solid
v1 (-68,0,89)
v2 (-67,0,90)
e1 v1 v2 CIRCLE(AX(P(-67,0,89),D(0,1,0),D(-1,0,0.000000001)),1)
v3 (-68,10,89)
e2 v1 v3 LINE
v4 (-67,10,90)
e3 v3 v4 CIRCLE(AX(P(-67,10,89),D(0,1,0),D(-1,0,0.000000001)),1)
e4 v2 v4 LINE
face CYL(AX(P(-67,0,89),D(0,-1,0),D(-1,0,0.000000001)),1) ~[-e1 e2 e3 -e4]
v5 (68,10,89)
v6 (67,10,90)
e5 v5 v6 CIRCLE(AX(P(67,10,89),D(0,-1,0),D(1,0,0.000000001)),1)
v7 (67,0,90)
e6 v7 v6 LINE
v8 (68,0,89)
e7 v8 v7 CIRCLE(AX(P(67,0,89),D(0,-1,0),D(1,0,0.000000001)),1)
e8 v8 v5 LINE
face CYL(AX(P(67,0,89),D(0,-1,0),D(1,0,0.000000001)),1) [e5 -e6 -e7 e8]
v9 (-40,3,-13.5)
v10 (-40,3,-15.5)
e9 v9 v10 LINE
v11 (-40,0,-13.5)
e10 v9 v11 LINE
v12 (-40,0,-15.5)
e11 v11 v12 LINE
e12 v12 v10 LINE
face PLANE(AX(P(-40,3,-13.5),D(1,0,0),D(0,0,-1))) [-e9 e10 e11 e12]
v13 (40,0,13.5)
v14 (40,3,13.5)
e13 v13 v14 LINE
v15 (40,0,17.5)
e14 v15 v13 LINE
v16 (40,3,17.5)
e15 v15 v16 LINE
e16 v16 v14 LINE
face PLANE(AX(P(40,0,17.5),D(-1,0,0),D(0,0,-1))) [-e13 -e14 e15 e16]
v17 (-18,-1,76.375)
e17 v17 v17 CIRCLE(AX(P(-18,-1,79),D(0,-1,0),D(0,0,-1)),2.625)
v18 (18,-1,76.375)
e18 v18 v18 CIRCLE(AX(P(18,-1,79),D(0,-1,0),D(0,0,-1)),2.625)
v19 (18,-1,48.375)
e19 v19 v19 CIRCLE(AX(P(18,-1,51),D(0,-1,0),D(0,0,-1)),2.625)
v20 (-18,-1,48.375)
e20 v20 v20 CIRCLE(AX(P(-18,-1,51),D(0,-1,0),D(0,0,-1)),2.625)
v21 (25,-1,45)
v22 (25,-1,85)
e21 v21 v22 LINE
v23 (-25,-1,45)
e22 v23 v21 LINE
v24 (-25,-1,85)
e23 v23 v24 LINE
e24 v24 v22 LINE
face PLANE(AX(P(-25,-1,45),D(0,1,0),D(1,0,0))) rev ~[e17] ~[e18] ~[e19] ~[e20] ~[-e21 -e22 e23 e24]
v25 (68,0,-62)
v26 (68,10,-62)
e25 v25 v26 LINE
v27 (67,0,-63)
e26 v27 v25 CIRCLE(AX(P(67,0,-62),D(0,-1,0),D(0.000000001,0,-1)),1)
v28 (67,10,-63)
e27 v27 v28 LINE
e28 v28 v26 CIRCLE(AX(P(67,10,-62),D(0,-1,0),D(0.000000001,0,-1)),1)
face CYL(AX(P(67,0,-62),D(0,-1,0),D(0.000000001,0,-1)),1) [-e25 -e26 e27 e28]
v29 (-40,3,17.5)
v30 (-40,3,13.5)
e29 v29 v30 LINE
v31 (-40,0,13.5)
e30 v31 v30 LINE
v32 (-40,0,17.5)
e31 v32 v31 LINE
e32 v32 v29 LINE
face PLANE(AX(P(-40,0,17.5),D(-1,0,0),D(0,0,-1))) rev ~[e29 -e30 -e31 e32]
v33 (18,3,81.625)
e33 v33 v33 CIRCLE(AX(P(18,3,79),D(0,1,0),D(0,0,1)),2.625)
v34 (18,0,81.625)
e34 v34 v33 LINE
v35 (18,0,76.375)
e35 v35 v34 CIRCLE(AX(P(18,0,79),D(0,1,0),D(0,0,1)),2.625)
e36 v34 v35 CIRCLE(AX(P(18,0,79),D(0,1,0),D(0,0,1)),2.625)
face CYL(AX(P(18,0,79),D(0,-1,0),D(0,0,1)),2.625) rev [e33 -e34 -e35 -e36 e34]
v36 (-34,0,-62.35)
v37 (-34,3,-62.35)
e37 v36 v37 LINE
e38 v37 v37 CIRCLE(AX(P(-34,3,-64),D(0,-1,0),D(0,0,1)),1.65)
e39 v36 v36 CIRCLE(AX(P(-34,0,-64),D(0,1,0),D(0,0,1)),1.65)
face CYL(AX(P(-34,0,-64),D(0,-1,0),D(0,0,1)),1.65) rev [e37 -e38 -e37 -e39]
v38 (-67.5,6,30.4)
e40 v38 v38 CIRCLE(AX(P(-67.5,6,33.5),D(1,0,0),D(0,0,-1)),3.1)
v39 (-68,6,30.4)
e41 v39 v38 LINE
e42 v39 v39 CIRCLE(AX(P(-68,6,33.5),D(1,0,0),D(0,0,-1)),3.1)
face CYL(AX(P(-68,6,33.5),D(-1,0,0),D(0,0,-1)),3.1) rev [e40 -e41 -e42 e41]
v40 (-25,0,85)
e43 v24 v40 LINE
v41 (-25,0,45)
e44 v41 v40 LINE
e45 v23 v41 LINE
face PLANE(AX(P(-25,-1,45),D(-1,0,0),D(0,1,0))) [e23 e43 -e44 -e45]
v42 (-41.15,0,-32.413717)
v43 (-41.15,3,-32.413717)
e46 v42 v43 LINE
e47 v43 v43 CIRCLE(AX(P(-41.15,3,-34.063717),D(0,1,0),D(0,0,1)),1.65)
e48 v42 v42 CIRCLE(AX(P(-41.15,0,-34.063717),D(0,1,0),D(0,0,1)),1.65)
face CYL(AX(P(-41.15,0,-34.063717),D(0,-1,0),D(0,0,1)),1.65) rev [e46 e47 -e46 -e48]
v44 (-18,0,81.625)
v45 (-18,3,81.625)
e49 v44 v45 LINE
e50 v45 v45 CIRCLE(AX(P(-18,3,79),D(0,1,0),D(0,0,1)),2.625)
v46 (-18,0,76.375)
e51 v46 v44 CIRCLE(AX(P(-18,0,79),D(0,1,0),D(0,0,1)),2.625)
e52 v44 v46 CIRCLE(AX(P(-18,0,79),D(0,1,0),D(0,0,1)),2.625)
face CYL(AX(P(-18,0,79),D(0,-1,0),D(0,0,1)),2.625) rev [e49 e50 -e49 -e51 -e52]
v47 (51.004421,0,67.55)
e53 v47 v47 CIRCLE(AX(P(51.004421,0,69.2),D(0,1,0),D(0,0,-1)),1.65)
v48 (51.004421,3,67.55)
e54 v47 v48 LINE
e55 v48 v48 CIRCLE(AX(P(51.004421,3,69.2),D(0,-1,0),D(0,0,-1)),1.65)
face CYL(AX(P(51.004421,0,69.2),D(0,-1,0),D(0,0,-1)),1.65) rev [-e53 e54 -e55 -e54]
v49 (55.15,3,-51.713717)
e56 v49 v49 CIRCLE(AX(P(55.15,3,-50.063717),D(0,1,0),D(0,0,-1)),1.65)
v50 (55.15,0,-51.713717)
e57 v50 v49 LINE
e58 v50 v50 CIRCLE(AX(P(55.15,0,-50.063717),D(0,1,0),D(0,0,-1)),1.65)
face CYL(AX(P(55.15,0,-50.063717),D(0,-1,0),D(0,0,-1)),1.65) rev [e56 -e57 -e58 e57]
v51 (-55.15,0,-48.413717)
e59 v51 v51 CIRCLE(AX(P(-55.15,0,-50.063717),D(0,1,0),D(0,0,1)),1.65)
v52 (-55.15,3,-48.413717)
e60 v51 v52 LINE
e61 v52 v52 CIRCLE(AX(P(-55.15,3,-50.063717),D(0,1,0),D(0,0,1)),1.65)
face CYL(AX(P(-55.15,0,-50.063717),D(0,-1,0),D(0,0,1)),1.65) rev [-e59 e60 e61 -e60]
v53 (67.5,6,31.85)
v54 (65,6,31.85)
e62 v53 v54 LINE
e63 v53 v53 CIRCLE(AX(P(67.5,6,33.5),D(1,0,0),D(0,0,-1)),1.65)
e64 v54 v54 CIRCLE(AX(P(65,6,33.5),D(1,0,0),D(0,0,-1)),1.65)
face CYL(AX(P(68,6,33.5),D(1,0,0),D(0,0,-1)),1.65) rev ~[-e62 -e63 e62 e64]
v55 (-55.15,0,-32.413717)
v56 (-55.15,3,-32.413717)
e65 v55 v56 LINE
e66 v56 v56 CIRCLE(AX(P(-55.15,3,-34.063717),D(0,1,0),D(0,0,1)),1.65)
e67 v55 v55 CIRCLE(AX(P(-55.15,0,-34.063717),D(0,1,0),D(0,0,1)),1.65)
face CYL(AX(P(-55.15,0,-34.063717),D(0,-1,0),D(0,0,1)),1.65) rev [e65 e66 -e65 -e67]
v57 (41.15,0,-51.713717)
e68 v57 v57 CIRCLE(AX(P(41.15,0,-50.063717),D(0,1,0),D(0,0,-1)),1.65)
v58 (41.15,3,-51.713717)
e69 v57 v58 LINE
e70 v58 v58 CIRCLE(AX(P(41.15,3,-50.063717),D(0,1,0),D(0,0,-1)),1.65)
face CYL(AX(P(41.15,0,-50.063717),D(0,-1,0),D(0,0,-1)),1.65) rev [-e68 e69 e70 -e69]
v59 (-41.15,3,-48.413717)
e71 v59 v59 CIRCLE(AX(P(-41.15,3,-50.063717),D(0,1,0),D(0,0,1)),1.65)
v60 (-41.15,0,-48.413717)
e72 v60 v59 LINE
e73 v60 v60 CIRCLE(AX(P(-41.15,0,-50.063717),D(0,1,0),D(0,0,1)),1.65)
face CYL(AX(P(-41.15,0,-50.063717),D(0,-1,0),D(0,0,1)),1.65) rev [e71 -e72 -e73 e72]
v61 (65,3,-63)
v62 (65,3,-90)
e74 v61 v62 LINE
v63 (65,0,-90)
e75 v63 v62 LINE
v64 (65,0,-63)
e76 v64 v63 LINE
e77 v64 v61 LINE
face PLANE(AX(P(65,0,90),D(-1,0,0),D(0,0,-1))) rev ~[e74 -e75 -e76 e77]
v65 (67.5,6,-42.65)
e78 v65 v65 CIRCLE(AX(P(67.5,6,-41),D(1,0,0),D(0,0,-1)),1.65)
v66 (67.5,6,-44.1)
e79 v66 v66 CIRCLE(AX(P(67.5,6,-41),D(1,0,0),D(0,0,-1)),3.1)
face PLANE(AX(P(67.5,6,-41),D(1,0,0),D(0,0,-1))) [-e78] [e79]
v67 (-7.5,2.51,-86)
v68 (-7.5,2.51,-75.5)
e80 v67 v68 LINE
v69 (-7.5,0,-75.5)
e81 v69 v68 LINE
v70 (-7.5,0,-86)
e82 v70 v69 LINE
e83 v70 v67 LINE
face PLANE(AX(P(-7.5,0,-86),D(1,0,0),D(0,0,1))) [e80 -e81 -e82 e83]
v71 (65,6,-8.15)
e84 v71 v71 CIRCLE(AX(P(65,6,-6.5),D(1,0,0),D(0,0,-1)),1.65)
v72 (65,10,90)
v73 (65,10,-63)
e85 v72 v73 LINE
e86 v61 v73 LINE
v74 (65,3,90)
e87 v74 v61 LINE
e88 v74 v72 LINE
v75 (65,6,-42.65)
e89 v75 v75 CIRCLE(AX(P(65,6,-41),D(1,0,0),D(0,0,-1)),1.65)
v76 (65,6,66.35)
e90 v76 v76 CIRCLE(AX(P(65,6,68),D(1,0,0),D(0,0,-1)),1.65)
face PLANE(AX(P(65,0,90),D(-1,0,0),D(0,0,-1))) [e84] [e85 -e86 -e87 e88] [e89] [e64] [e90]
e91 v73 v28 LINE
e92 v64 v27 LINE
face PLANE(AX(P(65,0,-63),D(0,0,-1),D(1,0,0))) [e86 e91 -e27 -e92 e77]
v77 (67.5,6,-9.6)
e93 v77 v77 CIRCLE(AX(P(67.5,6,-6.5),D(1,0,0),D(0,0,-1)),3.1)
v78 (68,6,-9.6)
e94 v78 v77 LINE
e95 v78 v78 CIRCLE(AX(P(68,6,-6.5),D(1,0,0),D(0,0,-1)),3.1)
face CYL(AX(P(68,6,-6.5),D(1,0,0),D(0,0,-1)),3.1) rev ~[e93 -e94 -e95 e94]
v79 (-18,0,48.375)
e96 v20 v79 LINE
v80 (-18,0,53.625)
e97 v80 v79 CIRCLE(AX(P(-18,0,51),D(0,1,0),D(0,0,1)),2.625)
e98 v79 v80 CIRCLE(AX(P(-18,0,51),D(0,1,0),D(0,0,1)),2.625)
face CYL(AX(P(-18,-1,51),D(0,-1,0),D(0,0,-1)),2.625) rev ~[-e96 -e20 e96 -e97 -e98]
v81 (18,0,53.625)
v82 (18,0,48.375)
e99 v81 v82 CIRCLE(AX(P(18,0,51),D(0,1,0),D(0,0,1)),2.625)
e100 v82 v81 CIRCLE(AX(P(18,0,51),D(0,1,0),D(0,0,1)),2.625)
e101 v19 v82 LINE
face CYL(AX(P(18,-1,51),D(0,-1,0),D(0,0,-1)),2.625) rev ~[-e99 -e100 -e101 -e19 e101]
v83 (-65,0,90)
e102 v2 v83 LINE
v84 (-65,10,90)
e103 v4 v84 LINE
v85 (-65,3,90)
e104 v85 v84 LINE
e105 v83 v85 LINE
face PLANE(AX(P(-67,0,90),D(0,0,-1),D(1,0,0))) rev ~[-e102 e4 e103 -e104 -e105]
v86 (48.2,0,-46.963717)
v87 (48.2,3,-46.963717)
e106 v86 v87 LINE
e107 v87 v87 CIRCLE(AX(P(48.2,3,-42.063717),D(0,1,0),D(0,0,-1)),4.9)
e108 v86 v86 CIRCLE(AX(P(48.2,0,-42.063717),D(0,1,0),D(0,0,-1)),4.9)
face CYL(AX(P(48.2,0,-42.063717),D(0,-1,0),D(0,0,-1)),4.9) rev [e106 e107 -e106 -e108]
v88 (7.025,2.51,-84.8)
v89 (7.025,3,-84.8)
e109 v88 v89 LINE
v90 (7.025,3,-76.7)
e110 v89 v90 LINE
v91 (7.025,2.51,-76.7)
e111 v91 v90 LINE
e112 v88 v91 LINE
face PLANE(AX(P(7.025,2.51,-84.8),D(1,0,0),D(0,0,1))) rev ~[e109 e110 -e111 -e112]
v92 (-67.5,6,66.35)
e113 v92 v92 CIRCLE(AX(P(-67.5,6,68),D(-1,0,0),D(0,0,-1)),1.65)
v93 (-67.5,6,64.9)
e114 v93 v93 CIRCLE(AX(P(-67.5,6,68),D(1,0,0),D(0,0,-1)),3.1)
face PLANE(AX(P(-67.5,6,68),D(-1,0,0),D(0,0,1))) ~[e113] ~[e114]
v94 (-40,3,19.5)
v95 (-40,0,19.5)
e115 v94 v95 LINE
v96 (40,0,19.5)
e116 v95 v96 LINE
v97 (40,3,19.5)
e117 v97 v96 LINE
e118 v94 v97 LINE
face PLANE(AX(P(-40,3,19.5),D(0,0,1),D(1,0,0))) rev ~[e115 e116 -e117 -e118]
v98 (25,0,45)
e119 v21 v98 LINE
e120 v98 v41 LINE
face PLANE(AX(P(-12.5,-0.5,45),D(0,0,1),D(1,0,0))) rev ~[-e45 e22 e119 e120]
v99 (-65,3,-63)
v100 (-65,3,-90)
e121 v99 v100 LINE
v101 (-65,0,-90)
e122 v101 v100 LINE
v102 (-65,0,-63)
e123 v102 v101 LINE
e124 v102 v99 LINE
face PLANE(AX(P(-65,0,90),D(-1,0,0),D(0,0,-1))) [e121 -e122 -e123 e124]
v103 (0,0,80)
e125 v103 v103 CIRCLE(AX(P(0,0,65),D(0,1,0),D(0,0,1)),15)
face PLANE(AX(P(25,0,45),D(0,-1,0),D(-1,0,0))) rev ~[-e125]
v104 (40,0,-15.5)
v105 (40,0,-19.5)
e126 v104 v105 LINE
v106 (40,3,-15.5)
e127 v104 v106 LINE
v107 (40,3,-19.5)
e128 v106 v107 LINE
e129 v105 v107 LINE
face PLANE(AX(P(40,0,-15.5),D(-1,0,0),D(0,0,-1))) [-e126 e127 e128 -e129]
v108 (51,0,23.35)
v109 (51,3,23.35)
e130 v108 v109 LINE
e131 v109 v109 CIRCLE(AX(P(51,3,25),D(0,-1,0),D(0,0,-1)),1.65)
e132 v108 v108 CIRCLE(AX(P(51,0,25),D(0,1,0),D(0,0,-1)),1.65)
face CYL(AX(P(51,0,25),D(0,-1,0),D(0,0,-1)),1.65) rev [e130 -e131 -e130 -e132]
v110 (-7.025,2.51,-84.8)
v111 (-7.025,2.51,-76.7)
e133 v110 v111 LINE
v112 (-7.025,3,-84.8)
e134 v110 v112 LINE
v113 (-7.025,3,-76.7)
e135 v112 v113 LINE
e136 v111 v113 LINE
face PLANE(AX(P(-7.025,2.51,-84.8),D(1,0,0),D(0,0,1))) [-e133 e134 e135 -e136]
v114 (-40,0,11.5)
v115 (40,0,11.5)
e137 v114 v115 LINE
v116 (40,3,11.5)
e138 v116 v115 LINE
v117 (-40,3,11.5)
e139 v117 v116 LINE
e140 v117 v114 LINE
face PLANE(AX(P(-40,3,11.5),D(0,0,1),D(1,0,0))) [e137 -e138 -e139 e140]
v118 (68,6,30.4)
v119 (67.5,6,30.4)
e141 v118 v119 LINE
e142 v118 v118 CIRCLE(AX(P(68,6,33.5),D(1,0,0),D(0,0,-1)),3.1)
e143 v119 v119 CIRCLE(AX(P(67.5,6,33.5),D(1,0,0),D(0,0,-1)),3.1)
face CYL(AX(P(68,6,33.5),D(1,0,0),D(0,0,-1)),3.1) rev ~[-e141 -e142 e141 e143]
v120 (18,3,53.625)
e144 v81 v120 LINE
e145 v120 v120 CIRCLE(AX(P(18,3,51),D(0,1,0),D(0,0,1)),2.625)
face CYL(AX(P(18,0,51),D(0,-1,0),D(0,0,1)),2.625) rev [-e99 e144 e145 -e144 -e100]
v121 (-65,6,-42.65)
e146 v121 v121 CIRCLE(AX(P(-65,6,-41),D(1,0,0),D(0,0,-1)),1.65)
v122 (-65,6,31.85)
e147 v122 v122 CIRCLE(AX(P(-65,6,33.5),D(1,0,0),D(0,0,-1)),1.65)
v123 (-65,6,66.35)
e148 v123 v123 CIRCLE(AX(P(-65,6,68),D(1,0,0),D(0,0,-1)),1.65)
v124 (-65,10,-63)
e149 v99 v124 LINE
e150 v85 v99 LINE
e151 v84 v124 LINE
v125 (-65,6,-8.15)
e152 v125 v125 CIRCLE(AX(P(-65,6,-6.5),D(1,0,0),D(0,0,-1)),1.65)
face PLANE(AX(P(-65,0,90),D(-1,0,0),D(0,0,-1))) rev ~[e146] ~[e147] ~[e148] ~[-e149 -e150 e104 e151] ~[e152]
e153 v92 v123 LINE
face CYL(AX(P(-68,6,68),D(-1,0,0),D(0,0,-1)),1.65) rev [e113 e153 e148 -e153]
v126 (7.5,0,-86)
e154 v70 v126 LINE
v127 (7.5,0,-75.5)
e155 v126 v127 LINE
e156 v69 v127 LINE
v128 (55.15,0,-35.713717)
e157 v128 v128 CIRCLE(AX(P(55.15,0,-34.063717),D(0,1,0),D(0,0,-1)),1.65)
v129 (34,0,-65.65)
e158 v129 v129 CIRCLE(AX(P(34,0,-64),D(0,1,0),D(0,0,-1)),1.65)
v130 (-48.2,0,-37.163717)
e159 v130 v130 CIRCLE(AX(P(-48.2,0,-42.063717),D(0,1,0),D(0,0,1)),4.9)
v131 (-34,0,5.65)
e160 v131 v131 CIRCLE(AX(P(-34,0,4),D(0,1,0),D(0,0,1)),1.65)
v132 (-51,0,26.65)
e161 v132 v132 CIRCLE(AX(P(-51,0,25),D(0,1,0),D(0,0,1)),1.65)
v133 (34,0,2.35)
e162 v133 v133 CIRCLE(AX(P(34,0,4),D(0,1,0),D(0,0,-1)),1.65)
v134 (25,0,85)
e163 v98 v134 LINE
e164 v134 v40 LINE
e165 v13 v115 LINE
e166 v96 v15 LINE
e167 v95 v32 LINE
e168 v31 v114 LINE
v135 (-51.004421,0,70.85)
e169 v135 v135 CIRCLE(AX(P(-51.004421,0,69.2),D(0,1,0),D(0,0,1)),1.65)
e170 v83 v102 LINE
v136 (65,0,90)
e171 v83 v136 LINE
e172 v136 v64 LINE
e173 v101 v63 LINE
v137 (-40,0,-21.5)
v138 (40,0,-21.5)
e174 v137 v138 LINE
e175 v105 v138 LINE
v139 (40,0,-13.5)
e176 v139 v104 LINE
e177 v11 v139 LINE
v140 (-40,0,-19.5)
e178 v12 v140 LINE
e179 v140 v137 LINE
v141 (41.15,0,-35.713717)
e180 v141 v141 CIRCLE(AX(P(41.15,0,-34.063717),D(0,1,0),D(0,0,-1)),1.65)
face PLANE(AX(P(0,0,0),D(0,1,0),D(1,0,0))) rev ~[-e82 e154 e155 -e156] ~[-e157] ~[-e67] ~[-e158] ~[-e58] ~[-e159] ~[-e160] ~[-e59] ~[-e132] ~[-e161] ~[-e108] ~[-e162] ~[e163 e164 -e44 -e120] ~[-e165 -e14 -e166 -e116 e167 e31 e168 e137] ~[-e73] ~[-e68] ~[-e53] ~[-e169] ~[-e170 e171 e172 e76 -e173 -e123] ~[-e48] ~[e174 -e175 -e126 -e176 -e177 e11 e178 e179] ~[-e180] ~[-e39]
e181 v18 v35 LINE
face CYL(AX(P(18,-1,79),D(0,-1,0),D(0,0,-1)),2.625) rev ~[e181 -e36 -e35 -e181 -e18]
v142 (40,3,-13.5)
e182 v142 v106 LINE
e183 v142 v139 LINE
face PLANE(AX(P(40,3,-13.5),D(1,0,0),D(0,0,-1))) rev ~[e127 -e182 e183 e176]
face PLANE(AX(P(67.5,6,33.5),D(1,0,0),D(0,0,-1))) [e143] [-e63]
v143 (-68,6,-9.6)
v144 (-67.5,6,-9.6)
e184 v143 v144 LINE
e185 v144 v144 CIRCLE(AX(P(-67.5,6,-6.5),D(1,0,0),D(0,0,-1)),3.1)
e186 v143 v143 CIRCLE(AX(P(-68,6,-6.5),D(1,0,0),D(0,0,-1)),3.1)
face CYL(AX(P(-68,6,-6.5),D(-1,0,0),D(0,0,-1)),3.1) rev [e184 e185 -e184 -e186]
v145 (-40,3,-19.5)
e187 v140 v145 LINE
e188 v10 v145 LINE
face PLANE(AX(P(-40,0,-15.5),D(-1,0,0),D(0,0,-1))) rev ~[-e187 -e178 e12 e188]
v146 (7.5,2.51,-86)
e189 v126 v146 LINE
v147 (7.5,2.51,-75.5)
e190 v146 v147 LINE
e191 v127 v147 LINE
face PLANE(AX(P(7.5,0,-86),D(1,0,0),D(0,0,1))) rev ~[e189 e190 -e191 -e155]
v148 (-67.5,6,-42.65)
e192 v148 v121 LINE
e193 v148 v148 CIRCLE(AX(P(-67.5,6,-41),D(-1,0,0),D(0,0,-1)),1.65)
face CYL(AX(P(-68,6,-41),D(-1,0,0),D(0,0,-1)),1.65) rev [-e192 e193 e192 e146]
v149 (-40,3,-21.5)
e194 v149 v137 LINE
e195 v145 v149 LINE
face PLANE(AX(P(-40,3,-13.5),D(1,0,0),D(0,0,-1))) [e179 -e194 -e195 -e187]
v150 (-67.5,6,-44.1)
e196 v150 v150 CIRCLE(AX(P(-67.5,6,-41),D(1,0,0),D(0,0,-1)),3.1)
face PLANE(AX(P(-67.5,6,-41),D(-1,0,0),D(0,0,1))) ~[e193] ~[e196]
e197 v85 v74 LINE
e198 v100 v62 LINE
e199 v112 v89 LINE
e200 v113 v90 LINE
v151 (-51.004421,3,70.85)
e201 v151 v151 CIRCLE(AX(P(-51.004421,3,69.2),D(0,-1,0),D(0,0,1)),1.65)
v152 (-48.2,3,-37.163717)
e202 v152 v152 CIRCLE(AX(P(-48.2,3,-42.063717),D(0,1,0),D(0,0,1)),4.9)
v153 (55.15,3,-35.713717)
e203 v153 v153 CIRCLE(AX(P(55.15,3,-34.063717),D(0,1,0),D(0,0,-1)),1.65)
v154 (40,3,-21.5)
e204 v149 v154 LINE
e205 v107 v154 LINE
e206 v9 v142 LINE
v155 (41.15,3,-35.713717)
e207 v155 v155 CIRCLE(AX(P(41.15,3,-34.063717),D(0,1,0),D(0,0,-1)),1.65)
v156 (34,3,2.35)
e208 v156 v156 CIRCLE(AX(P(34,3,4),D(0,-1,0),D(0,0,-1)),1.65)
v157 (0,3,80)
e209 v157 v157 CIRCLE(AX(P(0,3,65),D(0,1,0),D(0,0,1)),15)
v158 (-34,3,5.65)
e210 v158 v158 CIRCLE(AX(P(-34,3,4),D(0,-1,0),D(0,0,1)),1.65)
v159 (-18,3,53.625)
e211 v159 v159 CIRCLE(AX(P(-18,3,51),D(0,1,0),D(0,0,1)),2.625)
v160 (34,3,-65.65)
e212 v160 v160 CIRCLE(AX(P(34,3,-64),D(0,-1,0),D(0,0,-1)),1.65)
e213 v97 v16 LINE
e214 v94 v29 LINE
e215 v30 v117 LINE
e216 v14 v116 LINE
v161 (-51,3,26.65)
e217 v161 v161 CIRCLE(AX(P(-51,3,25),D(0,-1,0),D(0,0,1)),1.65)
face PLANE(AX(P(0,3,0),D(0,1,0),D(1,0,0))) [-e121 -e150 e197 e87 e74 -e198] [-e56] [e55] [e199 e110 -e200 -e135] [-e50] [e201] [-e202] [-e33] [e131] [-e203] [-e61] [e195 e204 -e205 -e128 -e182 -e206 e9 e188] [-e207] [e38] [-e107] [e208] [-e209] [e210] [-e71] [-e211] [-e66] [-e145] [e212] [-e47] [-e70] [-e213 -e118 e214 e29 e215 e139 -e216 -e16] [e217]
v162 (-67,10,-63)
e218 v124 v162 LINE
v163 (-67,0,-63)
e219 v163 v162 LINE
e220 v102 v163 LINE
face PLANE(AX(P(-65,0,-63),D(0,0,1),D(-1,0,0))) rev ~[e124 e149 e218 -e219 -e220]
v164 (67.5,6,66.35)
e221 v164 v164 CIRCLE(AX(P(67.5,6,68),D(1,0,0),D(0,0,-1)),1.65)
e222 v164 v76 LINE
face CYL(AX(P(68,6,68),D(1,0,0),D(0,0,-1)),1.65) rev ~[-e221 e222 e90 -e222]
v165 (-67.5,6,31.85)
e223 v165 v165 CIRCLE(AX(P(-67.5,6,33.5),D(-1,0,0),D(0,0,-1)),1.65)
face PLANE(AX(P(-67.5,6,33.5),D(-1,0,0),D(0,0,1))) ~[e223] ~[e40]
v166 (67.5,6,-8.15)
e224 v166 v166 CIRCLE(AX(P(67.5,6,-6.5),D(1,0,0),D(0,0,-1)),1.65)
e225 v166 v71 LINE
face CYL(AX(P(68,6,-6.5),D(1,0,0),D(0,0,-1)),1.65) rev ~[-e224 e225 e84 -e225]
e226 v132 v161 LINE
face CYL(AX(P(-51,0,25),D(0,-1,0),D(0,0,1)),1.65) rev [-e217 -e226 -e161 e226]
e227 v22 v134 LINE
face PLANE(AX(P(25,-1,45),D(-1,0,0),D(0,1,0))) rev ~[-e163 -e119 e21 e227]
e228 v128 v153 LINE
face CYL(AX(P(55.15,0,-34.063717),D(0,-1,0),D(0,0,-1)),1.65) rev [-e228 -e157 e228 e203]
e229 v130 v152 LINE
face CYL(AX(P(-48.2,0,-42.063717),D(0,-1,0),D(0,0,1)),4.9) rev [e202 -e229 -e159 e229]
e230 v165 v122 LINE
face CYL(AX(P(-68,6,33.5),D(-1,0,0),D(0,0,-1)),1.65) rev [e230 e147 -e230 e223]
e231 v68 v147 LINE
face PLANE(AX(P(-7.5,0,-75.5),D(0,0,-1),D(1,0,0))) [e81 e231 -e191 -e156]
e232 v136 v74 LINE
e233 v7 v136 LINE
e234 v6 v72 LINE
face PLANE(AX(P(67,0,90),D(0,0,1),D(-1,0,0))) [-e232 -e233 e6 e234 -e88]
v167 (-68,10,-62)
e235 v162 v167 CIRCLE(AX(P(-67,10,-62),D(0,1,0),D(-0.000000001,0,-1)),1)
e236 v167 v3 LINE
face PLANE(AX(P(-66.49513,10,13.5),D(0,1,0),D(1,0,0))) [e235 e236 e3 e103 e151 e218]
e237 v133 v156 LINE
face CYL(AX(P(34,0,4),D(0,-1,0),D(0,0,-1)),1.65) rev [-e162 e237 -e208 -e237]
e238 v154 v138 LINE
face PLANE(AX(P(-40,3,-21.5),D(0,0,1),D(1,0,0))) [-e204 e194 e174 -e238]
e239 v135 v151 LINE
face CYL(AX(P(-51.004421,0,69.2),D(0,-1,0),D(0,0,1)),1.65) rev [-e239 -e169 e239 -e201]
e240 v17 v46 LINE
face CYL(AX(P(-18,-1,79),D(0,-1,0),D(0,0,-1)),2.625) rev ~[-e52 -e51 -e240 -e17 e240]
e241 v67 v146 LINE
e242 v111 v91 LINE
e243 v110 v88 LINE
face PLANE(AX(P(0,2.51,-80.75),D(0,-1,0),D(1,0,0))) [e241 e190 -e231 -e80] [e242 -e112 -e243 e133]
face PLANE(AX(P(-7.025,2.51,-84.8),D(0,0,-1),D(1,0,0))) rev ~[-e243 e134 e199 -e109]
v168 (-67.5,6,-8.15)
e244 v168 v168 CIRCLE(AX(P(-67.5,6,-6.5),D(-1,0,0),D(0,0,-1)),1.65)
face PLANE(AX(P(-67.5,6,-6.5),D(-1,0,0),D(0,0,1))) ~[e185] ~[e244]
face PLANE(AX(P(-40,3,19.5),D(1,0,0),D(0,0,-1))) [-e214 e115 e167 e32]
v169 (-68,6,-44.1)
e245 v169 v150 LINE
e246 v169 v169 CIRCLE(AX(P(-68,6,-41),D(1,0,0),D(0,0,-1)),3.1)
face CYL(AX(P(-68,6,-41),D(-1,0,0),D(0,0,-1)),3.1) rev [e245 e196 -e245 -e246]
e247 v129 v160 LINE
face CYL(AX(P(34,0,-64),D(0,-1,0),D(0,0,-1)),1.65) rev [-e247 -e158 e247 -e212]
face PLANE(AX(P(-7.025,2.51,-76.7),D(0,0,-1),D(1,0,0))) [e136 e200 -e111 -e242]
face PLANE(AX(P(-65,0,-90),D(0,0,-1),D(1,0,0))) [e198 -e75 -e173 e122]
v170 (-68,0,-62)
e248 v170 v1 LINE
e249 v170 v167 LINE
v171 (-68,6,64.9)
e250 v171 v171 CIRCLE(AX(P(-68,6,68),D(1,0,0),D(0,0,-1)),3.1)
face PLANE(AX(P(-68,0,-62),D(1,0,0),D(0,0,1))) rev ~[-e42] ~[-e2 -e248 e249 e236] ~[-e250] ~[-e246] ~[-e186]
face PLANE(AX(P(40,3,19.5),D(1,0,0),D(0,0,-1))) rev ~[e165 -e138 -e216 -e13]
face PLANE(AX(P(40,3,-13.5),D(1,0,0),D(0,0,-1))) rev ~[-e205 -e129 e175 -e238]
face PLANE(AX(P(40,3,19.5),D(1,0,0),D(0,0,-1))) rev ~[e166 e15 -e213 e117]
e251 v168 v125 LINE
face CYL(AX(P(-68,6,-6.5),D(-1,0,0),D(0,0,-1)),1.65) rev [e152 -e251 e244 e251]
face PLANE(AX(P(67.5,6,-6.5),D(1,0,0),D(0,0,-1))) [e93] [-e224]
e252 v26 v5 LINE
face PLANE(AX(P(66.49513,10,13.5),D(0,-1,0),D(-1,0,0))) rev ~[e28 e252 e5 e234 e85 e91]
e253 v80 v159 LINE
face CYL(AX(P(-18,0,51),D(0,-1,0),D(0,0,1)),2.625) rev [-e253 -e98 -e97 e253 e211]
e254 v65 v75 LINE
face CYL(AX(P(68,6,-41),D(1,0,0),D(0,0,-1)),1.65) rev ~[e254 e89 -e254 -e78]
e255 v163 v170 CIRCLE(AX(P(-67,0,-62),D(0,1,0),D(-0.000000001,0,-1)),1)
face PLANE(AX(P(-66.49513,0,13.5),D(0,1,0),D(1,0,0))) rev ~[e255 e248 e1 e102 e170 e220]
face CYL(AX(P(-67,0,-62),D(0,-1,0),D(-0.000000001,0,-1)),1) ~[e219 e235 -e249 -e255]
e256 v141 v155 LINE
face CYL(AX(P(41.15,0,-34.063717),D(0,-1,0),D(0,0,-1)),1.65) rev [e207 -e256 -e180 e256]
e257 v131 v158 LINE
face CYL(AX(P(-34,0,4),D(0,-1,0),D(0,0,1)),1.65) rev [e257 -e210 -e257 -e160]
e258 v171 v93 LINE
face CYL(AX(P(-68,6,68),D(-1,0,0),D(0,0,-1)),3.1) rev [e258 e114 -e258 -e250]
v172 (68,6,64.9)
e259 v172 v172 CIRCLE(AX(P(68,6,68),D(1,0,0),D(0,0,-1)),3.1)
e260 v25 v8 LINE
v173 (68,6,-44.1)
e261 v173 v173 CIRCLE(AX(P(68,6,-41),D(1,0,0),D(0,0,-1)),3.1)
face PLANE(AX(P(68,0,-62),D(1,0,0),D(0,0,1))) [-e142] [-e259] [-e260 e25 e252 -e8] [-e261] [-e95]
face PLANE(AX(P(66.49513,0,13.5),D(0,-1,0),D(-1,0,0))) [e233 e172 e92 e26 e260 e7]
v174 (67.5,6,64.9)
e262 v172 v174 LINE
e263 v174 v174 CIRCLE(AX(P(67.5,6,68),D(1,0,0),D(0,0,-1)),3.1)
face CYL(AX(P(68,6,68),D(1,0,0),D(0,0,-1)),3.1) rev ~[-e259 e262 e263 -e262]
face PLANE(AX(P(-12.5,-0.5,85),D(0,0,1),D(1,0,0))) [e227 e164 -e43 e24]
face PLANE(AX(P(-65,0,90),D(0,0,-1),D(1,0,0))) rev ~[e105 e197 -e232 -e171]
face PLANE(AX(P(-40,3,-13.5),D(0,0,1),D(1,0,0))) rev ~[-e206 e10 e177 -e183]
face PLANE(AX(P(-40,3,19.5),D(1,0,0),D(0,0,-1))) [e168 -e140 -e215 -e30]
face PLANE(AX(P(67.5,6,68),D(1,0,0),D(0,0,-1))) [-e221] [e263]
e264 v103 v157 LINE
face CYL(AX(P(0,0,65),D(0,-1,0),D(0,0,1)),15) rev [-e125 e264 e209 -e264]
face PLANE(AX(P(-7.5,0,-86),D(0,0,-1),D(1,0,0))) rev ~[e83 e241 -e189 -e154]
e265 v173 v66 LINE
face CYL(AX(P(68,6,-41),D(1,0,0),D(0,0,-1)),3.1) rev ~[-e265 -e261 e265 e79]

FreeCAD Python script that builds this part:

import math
import FreeCAD as App
import Part
import Sketcher
Q = App.Units.Quantity


def add_polygon(sketch, points):
    """Adds a closed chain of lines whose ends are joined by coincident constraints."""
    first, n = sketch.GeometryCount, len(points)
    for a, b in zip(points, points[1:] + points[:1]):
        sketch.addGeometry(Part.LineSegment(App.Vector(*a, 0), App.Vector(*b, 0)), False)
    for i in range(n):
        sketch.addConstraint(Sketcher.Constraint("Coincident", first + i, 2, first + (i + 1) % n, 1))

doc = App.newDocument("Part")
body = doc.addObject("PartDesign::Body", "Body")

# Sketch on XZ plane
sketch1 = body.newObject("Sketcher::SketchObject", "Sketch")
sketch1.AttachmentSupport = (doc.getObject("XZ_Plane"), [""])
sketch1.MapMode = "FlatFace"
add_polygon(sketch1, [(-65, -90), (-65, 90), (65, 90), (65, -90)])  # lines 0-3
sketch1.addGeometry(Part.Circle(App.Vector(-18, 79, 0), App.Vector(0, 0, 1), 2.625), False)  # 4
sketch1.addGeometry(Part.Circle(App.Vector(-18, 51, 0), App.Vector(0, 0, 1), 2.625), False)  # 5
sketch1.addGeometry(Part.Circle(App.Vector(0, 65, 0), App.Vector(0, 0, 1), 15), False)  # 6
sketch1.addGeometry(Part.Circle(App.Vector(18, 79, 0), App.Vector(0, 0, 1), 2.625), False)  # 7
sketch1.addGeometry(Part.Circle(App.Vector(18, 51, 0), App.Vector(0, 0, 1), 2.625), False)  # 8
add_polygon(sketch1, [(40, 17.5), (-40, 17.5), (-40, 13.5), (40, 13.5)])  # lines 9-12
sketch1.addGeometry(Part.Circle(App.Vector(-55.15, -34.063717, 0), App.Vector(0, 0, 1), 1.65), False)  # 13
sketch1.addGeometry(Part.Circle(App.Vector(-41.15, -34.063717, 0), App.Vector(0, 0, 1), 1.65), False)  # 14
sketch1.addGeometry(Part.Circle(App.Vector(-48.2, -42.063717, 0), App.Vector(0, 0, 1), 4.9), False)  # 15
sketch1.addGeometry(Part.Circle(App.Vector(-55.15, -50.063717, 0), App.Vector(0, 0, 1), 1.65), False)  # 16
sketch1.addGeometry(Part.Circle(App.Vector(-41.15, -50.063717, 0), App.Vector(0, 0, 1), 1.65), False)  # 17
add_polygon(sketch1, [(40, -15.5), (-40, -15.5), (-40, -19.5), (40, -19.5)])  # lines 18-21
sketch1.addGeometry(Part.Circle(App.Vector(41.15, -34.063717, 0), App.Vector(0, 0, 1), 1.65), False)  # 22
sketch1.addGeometry(Part.Circle(App.Vector(55.15, -34.063717, 0), App.Vector(0, 0, 1), 1.65), False)  # 23
sketch1.addGeometry(Part.Circle(App.Vector(41.15, -50.063717, 0), App.Vector(0, 0, 1), 1.65), False)  # 24
sketch1.addGeometry(Part.Circle(App.Vector(48.2, -42.063717, 0), App.Vector(0, 0, 1), 4.9), False)  # 25
sketch1.addGeometry(Part.Circle(App.Vector(55.15, -50.063717, 0), App.Vector(0, 0, 1), 1.65), False)  # 26
sketch1.addConstraint([
    Sketcher.Constraint("Vertical", 0),
    Sketcher.Constraint("Horizontal", 1),
    Sketcher.Constraint("Vertical", 2),
    Sketcher.Constraint("Horizontal", 3),
    Sketcher.Constraint("Horizontal", 9),
    Sketcher.Constraint("Vertical", 10),
    Sketcher.Constraint("Horizontal", 11),
    Sketcher.Constraint("Vertical", 12),
    Sketcher.Constraint("Horizontal", 18),
    Sketcher.Constraint("Vertical", 19),
    Sketcher.Constraint("Horizontal", 20),
    Sketcher.Constraint("Vertical", 21),
    Sketcher.Constraint("Equal", 4, 5),
    Sketcher.Constraint("Equal", 5, 7),
    Sketcher.Constraint("Equal", 7, 8),
    Sketcher.Constraint("Equal", 13, 14),
    Sketcher.Constraint("Equal", 14, 16),
    Sketcher.Constraint("Equal", 16, 17),
    Sketcher.Constraint("Equal", 17, 22),
    Sketcher.Constraint("Equal", 22, 23),
    Sketcher.Constraint("Equal", 23, 24),
    Sketcher.Constraint("Equal", 15, 25),
    Sketcher.Constraint("Equal", 24, 26),
    Sketcher.Constraint("Symmetric", 0, 2, 2, 2, -1, 1),
    Sketcher.Constraint("Symmetric", 4, 3, 7, 3, -2),
    Sketcher.Constraint("Symmetric", 5, 3, 8, 3, -2),
    Sketcher.Constraint("Symmetric", 14, 3, 22, 3, -2),
    Sketcher.Constraint("Symmetric", 13, 3, 23, 3, -2),
    Sketcher.Constraint("Symmetric", 17, 3, 24, 3, -2),
    Sketcher.Constraint("Symmetric", 15, 3, 25, 3, -2),
    Sketcher.Constraint("Symmetric", 16, 3, 26, 3, -2),
    Sketcher.Constraint("PointOnObject", 6, 3, -2),
    Sketcher.Constraint("Horizontal", 13, 3, 14, 3),
    Sketcher.Constraint("Horizontal", 16, 3, 17, 3),
    Sketcher.Constraint("Vertical", 4, 3, 5, 3),
    Sketcher.Constraint("Vertical", 13, 3, 16, 3),
    Sketcher.Constraint("Vertical", 14, 3, 17, 3),
    Sketcher.Constraint("Vertical", 10, 2, 18, 2),
    Sketcher.Constraint("Vertical", 12, 2, 20, 2),
    Sketcher.Constraint("Equal", 12, 19),
    Sketcher.Constraint("Diameter", 6, Q("30 mm")),
    Sketcher.Constraint("Diameter", 13, Q("3.3 mm")),
    Sketcher.Constraint("Diameter", 15, Q("9.8 mm")),
    Sketcher.Constraint("Diameter", 4, Q("5.25 mm")),
    Sketcher.Constraint("DistanceX", 1, 1, 1, 2, Q("130 mm")),
    Sketcher.Constraint("DistanceX", 9, 2, 9, 1, Q("80 mm")),
    Sketcher.Constraint("DistanceY", 0, 1, 0, 2, Q("180 mm")),
    Sketcher.Constraint("DistanceY", 10, 2, 10, 1, Q("4 mm")),
    Sketcher.Constraint("DistanceX", 4, 3, -1, 1, Q("18 mm")),
    Sketcher.Constraint("DistanceY", -1, 1, 4, 3, Q("79 mm")),
    Sketcher.Constraint("DistanceY", -1, 1, 5, 3, Q("51 mm")),
    Sketcher.Constraint("DistanceY", -1, 1, 6, 3, Q("65 mm")),
    Sketcher.Constraint("DistanceX", 9, 2, -1, 1, Q("40 mm")),
    Sketcher.Constraint("DistanceX", 13, 3, 14, 3, Q("14 mm")),
    Sketcher.Constraint("DistanceY", 15, 3, 13, 3, Q("8 mm")),
    Sketcher.Constraint("DistanceY", 16, 3, 15, 3, Q("8 mm")),
    Sketcher.Constraint("DistanceY", 18, 2, 10, 2, Q("29 mm")),
    Sketcher.Constraint("DistanceX", 15, 3, -1, 1, Q("48.2 mm")),
    Sketcher.Constraint("DistanceY", -1, 1, 9, 2, Q("17.5 mm")),
    Sketcher.Constraint("DistanceX", 14, 3, 22, 3, Q("82.3 mm")),
    Sketcher.Constraint("DistanceY", 13, 3, -1, 1, Q("34.063717 mm")),
])
pad1 = body.newObject("PartDesign::Pad", "Pad")
pad1.Profile = sketch1
pad1.Length = 3
pad1.Reversed = True

# Sketch on XZ plane
sketch2 = body.newObject("Sketcher::SketchObject", "Sketch001")
sketch2.AttachmentSupport = (doc.getObject("XZ_Plane"), [""])
sketch2.MapMode = "FlatFace"
sketch2.addGeometry([
    Part.Circle(App.Vector(-34, -64, 0), App.Vector(0, 0, 1), 1.65),  # 0
    Part.Circle(App.Vector(-34, 4, 0), App.Vector(0, 0, 1), 1.65),  # 1
    Part.Circle(App.Vector(34, 4, 0), App.Vector(0, 0, 1), 1.65),  # 2
    Part.Circle(App.Vector(34, -64, 0), App.Vector(0, 0, 1), 1.65),  # 3
    Part.Circle(App.Vector(-51, 25, 0), App.Vector(0, 0, 1), 1.65),  # 4
    Part.Circle(App.Vector(-51.004421, 69.2, 0), App.Vector(0, 0, 1), 1.65),  # 5
    Part.Circle(App.Vector(51.004421, 69.2, 0), App.Vector(0, 0, 1), 1.65),  # 6
    Part.Circle(App.Vector(51, 25, 0), App.Vector(0, 0, 1), 1.65),  # 7
], False)
sketch2.addConstraint([
    Sketcher.Constraint("Equal", 0, 1),
    Sketcher.Constraint("Equal", 1, 2),
    Sketcher.Constraint("Equal", 2, 3),
    Sketcher.Constraint("Equal", 3, 4),
    Sketcher.Constraint("Equal", 4, 5),
    Sketcher.Constraint("Equal", 5, 6),
    Sketcher.Constraint("Equal", 6, 7),
    Sketcher.Constraint("Symmetric", 1, 3, 2, 3, -2),
    Sketcher.Constraint("Symmetric", 0, 3, 3, 3, -2),
    Sketcher.Constraint("Symmetric", 5, 3, 6, 3, -2),
    Sketcher.Constraint("Symmetric", 4, 3, 7, 3, -2),
    Sketcher.Constraint("Vertical", 0, 3, 1, 3),
    Sketcher.Constraint("Diameter", 0, Q("3.3 mm")),
    Sketcher.Constraint("DistanceX", 0, 3, -1, 1, Q("34 mm")),
    Sketcher.Constraint("DistanceY", 0, 3, -1, 1, Q("64 mm")),
    Sketcher.Constraint("DistanceY", -1, 1, 1, 3, Q("4 mm")),
    Sketcher.Constraint("DistanceX", 4, 3, -1, 1, Q("51 mm")),
    Sketcher.Constraint("DistanceY", -1, 1, 4, 3, Q("25 mm")),
    Sketcher.Constraint("DistanceY", -1, 1, 5, 3, Q("69.2 mm")),
    Sketcher.Constraint("DistanceX", 5, 3, -1, 1, Q("51.004421 mm")),
])
pocket1 = body.newObject("PartDesign::Pocket", "Pocket")
pocket1.Profile = sketch2
pocket1.Type = "ThroughAll"

# Sketch on XZ plane
sketch3 = body.newObject("Sketcher::SketchObject", "Sketch002")
sketch3.AttachmentSupport = (doc.getObject("XZ_Plane"), [""])
sketch3.MapMode = "FlatFace"
add_polygon(sketch3, [(-7.5, -75.5), (-7.5, -86), (7.5, -86), (7.5, -75.5)])  # lines 0-3
sketch3.addConstraint([
    Sketcher.Constraint("Vertical", 0),
    Sketcher.Constraint("Horizontal", 1),
    Sketcher.Constraint("Vertical", 2),
    Sketcher.Constraint("Horizontal", 3),
    Sketcher.Constraint("DistanceX", 1, 1, 1, 2, Q("15 mm")),
    Sketcher.Constraint("DistanceY", 0, 2, 0, 1, Q("10.5 mm")),
    Sketcher.Constraint("DistanceY", 0, 2, -1, 1, Q("86 mm")),
    Sketcher.Constraint("DistanceX", 0, 2, -1, 1, Q("7.5 mm")),
])
pocket2 = body.newObject("PartDesign::Pocket", "Pocket001")
pocket2.Profile = sketch3
pocket2.Length = 2.51

# Sketch on XZ plane
sketch4 = body.newObject("Sketcher::SketchObject", "Sketch003")
sketch4.AttachmentSupport = (doc.getObject("XZ_Plane"), [""])
sketch4.MapMode = "FlatFace"
sketch4.AttachmentOffset = App.Placement(App.Vector(0, 0, -2.51), App.Rotation())
add_polygon(sketch4, [(-7.025, -76.7), (-7.025, -84.8), (7.025, -84.8), (7.025, -76.7)])  # lines 0-3
sketch4.addConstraint([
    Sketcher.Constraint("Vertical", 0),
    Sketcher.Constraint("Horizontal", 1),
    Sketcher.Constraint("Vertical", 2),
    Sketcher.Constraint("Horizontal", 3),
    Sketcher.Constraint("DistanceY", 0, 2, 0, 1, Q("8.1 mm")),
    Sketcher.Constraint("DistanceX", 1, 1, 1, 2, Q("14.05 mm")),
    Sketcher.Constraint("DistanceY", 0, 2, -1, 1, Q("84.8 mm")),
    Sketcher.Constraint("DistanceX", 0, 2, -1, 1, Q("7.025 mm")),
])
pocket3 = body.newObject("PartDesign::Pocket", "Pocket002")
pocket3.Profile = sketch4
pocket3.Length = 0.49

# Sketch on XY plane
sketch5 = body.newObject("Sketcher::SketchObject", "Sketch004")
sketch5.AttachmentSupport = (doc.getObject("XY_Plane"), [""])
sketch5.MapMode = "FlatFace"
sketch5.AttachmentOffset = App.Placement(App.Vector(0, 0, 45), App.Rotation())
add_polygon(sketch5, [(-25, 0), (-25, -1), (25, -1), (25, 0)])  # lines 0-3
sketch5.addConstraint([
    Sketcher.Constraint("Vertical", 0),
    Sketcher.Constraint("Horizontal", 1),
    Sketcher.Constraint("Vertical", 2),
    Sketcher.Constraint("Horizontal", 3),
    Sketcher.Constraint("Symmetric", 2, 2, 3, 2, -1, 1),
    Sketcher.Constraint("DistanceX", 1, 1, 1, 2, Q("50 mm")),
    Sketcher.Constraint("DistanceY", 0, 2, 0, 1, Q("1 mm")),
])
pad2 = body.newObject("PartDesign::Pad", "Pad001")
pad2.Profile = sketch5
pad2.Length = 40

# Sketch on XZ plane
sketch6 = body.newObject("Sketcher::SketchObject", "Sketch005")
sketch6.AttachmentSupport = (doc.getObject("XZ_Plane"), [""])
sketch6.MapMode = "FlatFace"
sketch6.AttachmentOffset = App.Placement(App.Vector(0, 0, 1), App.Rotation())
sketch6.addGeometry([
    Part.Circle(App.Vector(-18, 51, 0), App.Vector(0, 0, 1), 2.625),
    Part.Circle(App.Vector(18, 51, 0), App.Vector(0, 0, 1), 2.625),
    Part.Circle(App.Vector(-18, 79, 0), App.Vector(0, 0, 1), 2.625),
    Part.Circle(App.Vector(18, 79, 0), App.Vector(0, 0, 1), 2.625),
], False)
sketch6.addConstraint([
    Sketcher.Constraint("Equal", 0, 1),
    Sketcher.Constraint("Equal", 1, 2),
    Sketcher.Constraint("Equal", 2, 3),
    Sketcher.Constraint("Symmetric", 0, 3, 1, 3, -2),
    Sketcher.Constraint("Symmetric", 2, 3, 3, 3, -2),
    Sketcher.Constraint("Vertical", 0, 3, 2, 3),
    Sketcher.Constraint("Diameter", 0, Q("5.25 mm")),
    Sketcher.Constraint("DistanceX", 0, 3, -1, 1, Q("18 mm")),
    Sketcher.Constraint("DistanceY", -1, 1, 0, 3, Q("51 mm")),
    Sketcher.Constraint("DistanceY", -1, 1, 2, 3, Q("79 mm")),
])
pocket4 = body.newObject("PartDesign::Pocket", "Pocket003")
pocket4.Profile = sketch6
pocket4.Length = 1

# Sketch on XZ plane
sketch7 = body.newObject("Sketcher::SketchObject", "Sketch006")
sketch7.AttachmentSupport = (doc.getObject("XZ_Plane"), [""])
sketch7.MapMode = "FlatFace"
sketch7.addGeometry([
    Part.LineSegment(App.Vector(-65, -63, 0), App.Vector(-67, -63, 0)),  # 0
    Part.ArcOfCircle(Part.Circle(App.Vector(-67, -62, 0), App.Vector(0, 0, 1), 1), math.radians(-180), math.radians(-90)),  # 1
    Part.LineSegment(App.Vector(-68, -62, 0), App.Vector(-68, 89, 0)),  # 2
    Part.ArcOfCircle(Part.Circle(App.Vector(-67, 89, 0), App.Vector(0, 0, 1), 1), math.radians(90), math.radians(180)),  # 3
    Part.LineSegment(App.Vector(-67, 90, 0), App.Vector(-65, 90, 0)),  # 4
    Part.LineSegment(App.Vector(-65, 90, 0), App.Vector(-65, -63, 0)),  # 5
    Part.LineSegment(App.Vector(65, -63, 0), App.Vector(65, 90, 0)),  # 6
    Part.LineSegment(App.Vector(65, 90, 0), App.Vector(67, 90, 0)),  # 7
    Part.ArcOfCircle(Part.Circle(App.Vector(67, 89, 0), App.Vector(0, 0, 1), 1), math.radians(0), math.radians(90)),  # 8
    Part.LineSegment(App.Vector(68, 89, 0), App.Vector(68, -62, 0)),  # 9
    Part.ArcOfCircle(Part.Circle(App.Vector(67, -62, 0), App.Vector(0, 0, 1), 1), math.radians(-90), math.radians(0)),  # 10
    Part.LineSegment(App.Vector(67, -63, 0), App.Vector(65, -63, 0)),  # 11
], False)
sketch7.addConstraint([
    Sketcher.Constraint("Tangent", 0, 2, 1, 2),
    Sketcher.Constraint("Tangent", 1, 1, 2, 1),
    Sketcher.Constraint("Tangent", 2, 2, 3, 2),
    Sketcher.Constraint("Tangent", 3, 1, 4, 1),
    Sketcher.Constraint("Coincident", 4, 2, 5, 1),
    Sketcher.Constraint("Coincident", 5, 2, 0, 1),
    Sketcher.Constraint("Coincident", 6, 2, 7, 1),
    Sketcher.Constraint("Tangent", 7, 2, 8, 2),
    Sketcher.Constraint("Tangent", 8, 1, 9, 1),
    Sketcher.Constraint("Tangent", 9, 2, 10, 2),
    Sketcher.Constraint("Tangent", 10, 1, 11, 1),
    Sketcher.Constraint("Coincident", 11, 2, 6, 1),
    Sketcher.Constraint("Horizontal", 0),
    Sketcher.Constraint("Vertical", 2),
    Sketcher.Constraint("Horizontal", 4),
    Sketcher.Constraint("Vertical", 5),
    Sketcher.Constraint("Vertical", 6),
    Sketcher.Constraint("Horizontal", 7),
    Sketcher.Constraint("Vertical", 9),
    Sketcher.Constraint("Horizontal", 11),
    Sketcher.Constraint("Equal", 1, 3),
    Sketcher.Constraint("Equal", 3, 8),
    Sketcher.Constraint("Equal", 8, 10),
    Sketcher.Constraint("Symmetric", 3, 3, 8, 3, -2),
    Sketcher.Constraint("Symmetric", 5, 2, 11, 2, -2),
    Sketcher.Constraint("Radius", 1, Q("1 mm")),
    Sketcher.Constraint("DistanceX", 0, 2, 0, 1, Q("2 mm")),
    Sketcher.Constraint("DistanceY", 2, 1, 2, 2, Q("151 mm")),
    Sketcher.Constraint("DistanceX", 1, 3, -1, 1, Q("67 mm")),
    Sketcher.Constraint("DistanceY", 1, 3, -1, 1, Q("62 mm")),
])
pad3 = body.newObject("PartDesign::Pad", "Pad002")
pad3.Profile = sketch7
pad3.Length = 10
pad3.Reversed = True

# Sketch on YZ plane
sketch8 = body.newObject("Sketcher::SketchObject", "Sketch007")
sketch8.AttachmentSupport = (doc.getObject("YZ_Plane"), [""])
sketch8.MapMode = "FlatFace"
sketch8.AttachmentOffset = App.Placement(App.Vector(0, 0, 68), App.Rotation())
sketch8.addGeometry([
    Part.Circle(App.Vector(6, 33.5, 0), App.Vector(0, 0, 1), 1.65),
    Part.Circle(App.Vector(6, 68, 0), App.Vector(0, 0, 1), 1.65),
    Part.Circle(App.Vector(6, -6.5, 0), App.Vector(0, 0, 1), 1.65),
    Part.Circle(App.Vector(6, -41, 0), App.Vector(0, 0, 1), 1.65),
], False)
sketch8.addConstraint([
    Sketcher.Constraint("Equal", 0, 1),
    Sketcher.Constraint("Equal", 1, 2),
    Sketcher.Constraint("Equal", 2, 3),
    Sketcher.Constraint("Vertical", 0, 3, 1, 3),
    Sketcher.Constraint("Vertical", 1, 3, 2, 3),
    Sketcher.Constraint("Vertical", 2, 3, 3, 3),
    Sketcher.Constraint("Diameter", 0, Q("3.3 mm")),
    Sketcher.Constraint("DistanceX", -1, 1, 0, 3, Q("6 mm")),
    Sketcher.Constraint("DistanceY", -1, 1, 1, 3, Q("68 mm")),
    Sketcher.Constraint("DistanceY", 3, 3, -1, 1, Q("41 mm")),
    Sketcher.Constraint("DistanceY", 2, 3, 0, 3, Q("40 mm")),
    Sketcher.Constraint("DistanceY", -1, 1, 0, 3, Q("33.5 mm")),
])
pocket5 = body.newObject("PartDesign::Pocket", "Pocket004")
pocket5.Profile = sketch8
pocket5.Length = 133
doc.recompute()

mirrored = body.newObject("PartDesign::Mirrored", "Mirrored")
mirrored.Originals = [pocket5]
mirrored.MirrorPlane = (doc.getObject("YZ_Plane"), [""])
body.Tip = mirrored

# Sketch on YZ plane
sketch9 = body.newObject("Sketcher::SketchObject", "Sketch008")
sketch9.AttachmentSupport = (doc.getObject("YZ_Plane"), [""])
sketch9.MapMode = "FlatFace"
sketch9.AttachmentOffset = App.Placement(App.Vector(0, 0, 68), App.Rotation())
sketch9.addGeometry([
    Part.Circle(App.Vector(6, 68, 0), App.Vector(0, 0, 1), 3.1),
    Part.Circle(App.Vector(6, 33.5, 0), App.Vector(0, 0, 1), 3.1),
    Part.Circle(App.Vector(6, -6.5, 0), App.Vector(0, 0, 1), 3.1),
    Part.Circle(App.Vector(6, -41, 0), App.Vector(0, 0, 1), 3.1),
], False)
sketch9.addConstraint([
    Sketcher.Constraint("Equal", 0, 1),
    Sketcher.Constraint("Equal", 1, 2),
    Sketcher.Constraint("Equal", 2, 3),
    Sketcher.Constraint("Vertical", 0, 3, 1, 3),
    Sketcher.Constraint("Vertical", 1, 3, 2, 3),
    Sketcher.Constraint("Vertical", 2, 3, 3, 3),
    Sketcher.Constraint("Diameter", 0, Q("6.2 mm")),
    Sketcher.Constraint("DistanceX", -1, 1, 0, 3, Q("6 mm")),
    Sketcher.Constraint("DistanceY", -1, 1, 0, 3, Q("68 mm")),
    Sketcher.Constraint("DistanceY", 3, 3, -1, 1, Q("41 mm")),
    Sketcher.Constraint("DistanceY", 2, 3, 1, 3, Q("40 mm")),
    Sketcher.Constraint("DistanceY", -1, 1, 1, 3, Q("33.5 mm")),
])
pocket6 = body.newObject("PartDesign::Pocket", "Pocket005")
pocket6.Profile = sketch9
pocket6.Length = 0.5
doc.recompute()

mirrored2 = body.newObject("PartDesign::Mirrored", "Mirrored001")
mirrored2.Originals = [pocket6]
mirrored2.MirrorPlane = (doc.getObject("YZ_Plane"), [""])
body.Tip = mirrored2

# Sketch on XZ plane
sketch10 = body.newObject("Sketcher::SketchObject", "Sketch009")
sketch10.AttachmentSupport = (doc.getObject("XZ_Plane"), [""])
sketch10.MapMode = "FlatFace"
sketch10.AttachmentOffset = App.Placement(App.Vector(0, 0, -3), App.Rotation())
add_polygon(sketch10, [(-40, 11.5), (-40, 19.5), (40, 19.5), (40, 11.5)])  # lines 0-3
add_polygon(sketch10, [(-40, -21.5), (-40, -13.5), (40, -13.5), (40, -21.5)])  # lines 4-7
sketch10.addConstraint([
    Sketcher.Constraint("Vertical", 0),
    Sketcher.Constraint("Horizontal", 1),
    Sketcher.Constraint("Vertical", 2),
    Sketcher.Constraint("Horizontal", 3),
    Sketcher.Constraint("Vertical", 4),
    Sketcher.Constraint("Horizontal", 5),
    Sketcher.Constraint("Vertical", 6),
    Sketcher.Constraint("Horizontal", 7),
    Sketcher.Constraint("Vertical", 3, 2, 4, 2),
    Sketcher.Constraint("Vertical", 2, 2, 5, 2),
    Sketcher.Constraint("Equal", 2, 4),
    Sketcher.Constraint("DistanceX", 1, 1, 1, 2, Q("80 mm")),
    Sketcher.Constraint("DistanceY", 0, 1, 0, 2, Q("8 mm")),
    Sketcher.Constraint("DistanceX", 0, 2, -1, 1, Q("40 mm")),
    Sketcher.Constraint("DistanceY", 4, 2, 3, 2, Q("25 mm")),
    Sketcher.Constraint("DistanceY", -1, 1, 0, 2, Q("19.5 mm")),
])
pocket7 = body.newObject("PartDesign::Pocket", "Pocket006")
pocket7.Profile = sketch10
pocket7.Length = 3
pocket7.Reversed = True

doc.recompute()
